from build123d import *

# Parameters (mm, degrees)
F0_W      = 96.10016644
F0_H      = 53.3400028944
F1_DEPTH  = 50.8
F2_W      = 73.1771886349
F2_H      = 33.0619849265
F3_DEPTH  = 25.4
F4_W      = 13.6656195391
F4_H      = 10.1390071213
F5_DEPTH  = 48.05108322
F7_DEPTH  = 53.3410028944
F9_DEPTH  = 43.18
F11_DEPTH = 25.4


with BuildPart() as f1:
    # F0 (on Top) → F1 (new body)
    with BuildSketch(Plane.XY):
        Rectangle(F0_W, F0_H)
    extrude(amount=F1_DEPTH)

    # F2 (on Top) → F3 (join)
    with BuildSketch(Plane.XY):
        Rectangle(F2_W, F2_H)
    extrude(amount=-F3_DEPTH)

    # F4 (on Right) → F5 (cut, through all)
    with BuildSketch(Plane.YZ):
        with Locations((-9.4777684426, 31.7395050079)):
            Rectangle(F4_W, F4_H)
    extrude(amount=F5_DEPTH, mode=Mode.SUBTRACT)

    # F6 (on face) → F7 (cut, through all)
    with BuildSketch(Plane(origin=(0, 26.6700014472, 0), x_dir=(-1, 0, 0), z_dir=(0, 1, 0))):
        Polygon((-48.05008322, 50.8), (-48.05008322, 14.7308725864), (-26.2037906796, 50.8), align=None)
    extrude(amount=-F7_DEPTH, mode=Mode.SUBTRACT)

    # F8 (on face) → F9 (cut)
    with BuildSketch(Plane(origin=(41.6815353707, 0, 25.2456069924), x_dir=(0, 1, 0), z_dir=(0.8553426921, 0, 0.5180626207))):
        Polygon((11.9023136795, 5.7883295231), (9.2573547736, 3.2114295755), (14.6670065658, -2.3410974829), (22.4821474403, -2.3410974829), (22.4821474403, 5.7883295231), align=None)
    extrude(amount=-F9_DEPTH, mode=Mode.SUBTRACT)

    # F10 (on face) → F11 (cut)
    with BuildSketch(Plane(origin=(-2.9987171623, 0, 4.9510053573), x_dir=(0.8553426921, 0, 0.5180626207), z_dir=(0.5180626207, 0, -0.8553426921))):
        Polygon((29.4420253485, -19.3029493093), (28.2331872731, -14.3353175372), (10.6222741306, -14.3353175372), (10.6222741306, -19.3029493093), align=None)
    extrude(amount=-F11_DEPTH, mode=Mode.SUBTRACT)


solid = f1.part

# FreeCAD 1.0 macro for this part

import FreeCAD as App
import Part
import Sketcher
from FreeCAD import Vector
Q = App.Units.Quantity


def add_polygon(sketch, points):
    """Adds a closed chain of lines whose ends are joined by coincident constraints."""
    first, n = sketch.GeometryCount, len(points)
    for a, b in zip(points, points[1:] + points[:1]):
        sketch.addGeometry(Part.LineSegment(App.Vector(*a, 0), App.Vector(*b, 0)), False)
    for i in range(n):
        sketch.addConstraint(Sketcher.Constraint("Coincident", first + i, 2, first + (i + 1) % n, 1))

doc = App.newDocument("Part")
params = doc.addObject("Spreadsheet::Sheet", "Params")
for row, (alias, value) in enumerate([
    ("sketch1_height", "2.1000001 in"),
    ("pad1_length", "2 in"),
    ("pad2_length", "1 in"),
    ("pocket3_length", "1.7 in"),
    ("pocket4_length", "1 in"),
], start=1):
    params.set(f"A{row}", alias)
    params.set(f"B{row}", "=" + value)
    params.setAlias(f"B{row}", alias)

body = doc.addObject("PartDesign::Body", "Body")

sketch1 = body.newObject("Sketcher::SketchObject", "Sketch")
sketch1.AttachmentSupport = (doc.getObject("XY_Plane"), [""])
sketch1.MapMode = "FlatFace"
add_polygon(sketch1, [(-48, 27), (-48, -27), (48, -27), (48, 27)])
sketch1.addConstraint(Sketcher.Constraint("Vertical", 0))
sketch1.addConstraint(Sketcher.Constraint("Horizontal", 1))
sketch1.addConstraint(Sketcher.Constraint("Vertical", 2))
sketch1.addConstraint(Sketcher.Constraint("Horizontal", 3))
sketch1.addConstraint(Sketcher.Constraint("Symmetric", 0, 2, 2, 2, -1, 1))
sketch1.addConstraint(Sketcher.Constraint("DistanceY", 0, 2, 0, 1, Q("2.1000001 in")))
sketch1.addConstraint(Sketcher.Constraint("DistanceX", 1, 1, 1, 2, Q("96.100166 mm")))
sketch1.setExpression("Constraints[9]", "Params.sketch1_height")
pad1 = body.newObject("PartDesign::Pad", "Pad")
pad1.Profile = sketch1
pad1.setExpression("Length", "Params.pad1_length")

sketch2 = body.newObject("Sketcher::SketchObject", "Sketch001")
sketch2.AttachmentSupport = (doc.getObject("XY_Plane"), [""])
sketch2.MapMode = "FlatFace"
add_polygon(sketch2, [(-37, 17), (-37, -17), (37, -17), (37, 17)])
sketch2.addConstraint(Sketcher.Constraint("Vertical", 0))
sketch2.addConstraint(Sketcher.Constraint("Horizontal", 1))
sketch2.addConstraint(Sketcher.Constraint("Vertical", 2))
sketch2.addConstraint(Sketcher.Constraint("Horizontal", 3))
sketch2.addConstraint(Sketcher.Constraint("Symmetric", 0, 2, 2, 2, -1, 1))
sketch2.addConstraint(Sketcher.Constraint("DistanceX", 1, 1, 1, 2, Q("73.177189 mm")))
sketch2.addConstraint(Sketcher.Constraint("DistanceY", 0, 2, 0, 1, Q("33.061985 mm")))
pad2 = body.newObject("PartDesign::Pad", "Pad001")
pad2.Profile = sketch2
pad2.setExpression("Length", "Params.pad2_length")
pad2.Reversed = True

sketch3 = body.newObject("Sketcher::SketchObject", "Sketch002")
sketch3.AttachmentSupport = (doc.getObject("YZ_Plane"), [""])
sketch3.MapMode = "FlatFace"
add_polygon(sketch3, [(-16, 37), (-16, 27), (-3, 27), (-3, 37)])
sketch3.addConstraint(Sketcher.Constraint("Vertical", 0))
sketch3.addConstraint(Sketcher.Constraint("Horizontal", 1))
sketch3.addConstraint(Sketcher.Constraint("Vertical", 2))
sketch3.addConstraint(Sketcher.Constraint("Horizontal", 3))
sketch3.addConstraint(Sketcher.Constraint("DistanceY", -1, 1, 0, 2, Q("1.0500001 in")))
sketch3.addConstraint(Sketcher.Constraint("DistanceX", 1, 1, 1, 2, Q("13.66562 mm")))
sketch3.addConstraint(Sketcher.Constraint("DistanceY", 0, 2, 0, 1, Q("10.139007 mm")))
sketch3.addConstraint(Sketcher.Constraint("DistanceX", 0, 2, -1, 1, Q("16.310578 mm")))
pocket1 = body.newObject("PartDesign::Pocket", "Pocket")
pocket1.Profile = sketch3
pocket1.Type = "ThroughAll"
pocket1.Reversed = True

sketch4 = body.newObject("Sketcher::SketchObject", "Sketch003")
sketch4.AttachmentSupport = (doc.getObject("XZ_Plane"), [""])
sketch4.MapMode = "FlatFace"
sketch4.AttachmentOffset = App.Placement(Vector(0, 0, -1.0500001 * 25.4), App.Rotation())
add_polygon(sketch4, [(48, 51), (48, 15), (26, 51)])
sketch4.addConstraint(Sketcher.Constraint("Vertical", 0))
sketch4.addConstraint(Sketcher.Constraint("Horizontal", 2))
sketch4.addConstraint(Sketcher.Constraint("DistanceY", -1, 1, 1, 2, Q("2 in")))
sketch4.addConstraint(Sketcher.Constraint("DistanceX", 2, 1, 2, 2, Q("21.846293 mm")))
sketch4.addConstraint(Sketcher.Constraint("DistanceY", 0, 2, 0, 1, Q("36.069127 mm")))
sketch4.addConstraint(Sketcher.Constraint("DistanceX", -1, 1, 1, 2, Q("26.203791 mm")))
pocket2 = body.newObject("PartDesign::Pocket", "Pocket001")
pocket2.Profile = sketch4
pocket2.Type = "ThroughAll"
pocket2.Reversed = True

sketch5 = body.newObject("Sketcher::SketchObject", "Sketch004")
sketch5.Placement = App.Placement(Vector(41.681535, 0, 25.245607), App.Rotation(Vector(0, 1, 0), Vector(-0.518062621, 0, 0.855342692), Vector(0.855342692, 0, 0.518062621), "ZXY"))
add_polygon(sketch5, [(11.9, 5.8), (9.3, 3.2), (14.7, -2.3), (22.5, -2.3), (22.5, 5.8)])
sketch5.addConstraint(Sketcher.Constraint("Horizontal", 2))
sketch5.addConstraint(Sketcher.Constraint("Vertical", 3))
sketch5.addConstraint(Sketcher.Constraint("Horizontal", 4))
sketch5.addConstraint(Sketcher.Constraint("Perpendicular", 0, 1))
sketch5.addConstraint(Sketcher.Constraint("DistanceX", 2, 1, 2, 2, Q("7.815141 mm")))
sketch5.addConstraint(Sketcher.Constraint("DistanceY", 0, 2, 3, 2, Q("2.5769 mm")))
sketch5.addConstraint(Sketcher.Constraint("Distance", 1, Q("7.752089 mm")))
sketch5.addConstraint(Sketcher.Constraint("DistanceX", 4, 2, 4, 1, Q("10.579834 mm")))
sketch5.addConstraint(Sketcher.Constraint("DistanceY", -1, 1, 0, 2, Q("3.21143 mm")))
sketch5.addConstraint(Sketcher.Constraint("DistanceX", -1, 1, 0, 2, Q("9.257355 mm")))
pocket3 = body.newObject("PartDesign::Pocket", "Pocket002")
pocket3.Profile = sketch5
pocket3.setExpression("Length", "Params.pocket3_length")

sketch6 = body.newObject("Sketcher::SketchObject", "Sketch005")
sketch6.Placement = App.Placement(Vector(-2.998717, 0, 4.951005), App.Rotation(Vector(0.855342692, 0, 0.518062621), Vector(0, -1, 0), Vector(0.518062621, 0, -0.855342692), "ZXY"))
add_polygon(sketch6, [(29.4, -19.3), (28.2, -14.3), (10.6, -14.3), (10.6, -19.3)])
sketch6.addConstraint(Sketcher.Constraint("Horizontal", 1))
sketch6.addConstraint(Sketcher.Constraint("Vertical", 2))
sketch6.addConstraint(Sketcher.Constraint("Horizontal", 3))
sketch6.addConstraint(Sketcher.Constraint("DistanceX", 3, 1, 3, 2, Q("18.819751 mm")))
sketch6.addConstraint(Sketcher.Constraint("DistanceY", 2, 2, 2, 1, Q("4.967632 mm")))
sketch6.addConstraint(Sketcher.Constraint("DistanceX", 1, 2, 1, 1, Q("17.610913 mm")))
sketch6.addConstraint(Sketcher.Constraint("DistanceY", 2, 2, -1, 1, Q("19.302949 mm")))
sketch6.addConstraint(Sketcher.Constraint("DistanceX", -1, 1, 0, 2, Q("28.233187 mm")))
pocket4 = body.newObject("PartDesign::Pocket", "Pocket003")
pocket4.Profile = sketch6
pocket4.setExpression("Length", "Params.pocket4_length")

doc.recompute()
